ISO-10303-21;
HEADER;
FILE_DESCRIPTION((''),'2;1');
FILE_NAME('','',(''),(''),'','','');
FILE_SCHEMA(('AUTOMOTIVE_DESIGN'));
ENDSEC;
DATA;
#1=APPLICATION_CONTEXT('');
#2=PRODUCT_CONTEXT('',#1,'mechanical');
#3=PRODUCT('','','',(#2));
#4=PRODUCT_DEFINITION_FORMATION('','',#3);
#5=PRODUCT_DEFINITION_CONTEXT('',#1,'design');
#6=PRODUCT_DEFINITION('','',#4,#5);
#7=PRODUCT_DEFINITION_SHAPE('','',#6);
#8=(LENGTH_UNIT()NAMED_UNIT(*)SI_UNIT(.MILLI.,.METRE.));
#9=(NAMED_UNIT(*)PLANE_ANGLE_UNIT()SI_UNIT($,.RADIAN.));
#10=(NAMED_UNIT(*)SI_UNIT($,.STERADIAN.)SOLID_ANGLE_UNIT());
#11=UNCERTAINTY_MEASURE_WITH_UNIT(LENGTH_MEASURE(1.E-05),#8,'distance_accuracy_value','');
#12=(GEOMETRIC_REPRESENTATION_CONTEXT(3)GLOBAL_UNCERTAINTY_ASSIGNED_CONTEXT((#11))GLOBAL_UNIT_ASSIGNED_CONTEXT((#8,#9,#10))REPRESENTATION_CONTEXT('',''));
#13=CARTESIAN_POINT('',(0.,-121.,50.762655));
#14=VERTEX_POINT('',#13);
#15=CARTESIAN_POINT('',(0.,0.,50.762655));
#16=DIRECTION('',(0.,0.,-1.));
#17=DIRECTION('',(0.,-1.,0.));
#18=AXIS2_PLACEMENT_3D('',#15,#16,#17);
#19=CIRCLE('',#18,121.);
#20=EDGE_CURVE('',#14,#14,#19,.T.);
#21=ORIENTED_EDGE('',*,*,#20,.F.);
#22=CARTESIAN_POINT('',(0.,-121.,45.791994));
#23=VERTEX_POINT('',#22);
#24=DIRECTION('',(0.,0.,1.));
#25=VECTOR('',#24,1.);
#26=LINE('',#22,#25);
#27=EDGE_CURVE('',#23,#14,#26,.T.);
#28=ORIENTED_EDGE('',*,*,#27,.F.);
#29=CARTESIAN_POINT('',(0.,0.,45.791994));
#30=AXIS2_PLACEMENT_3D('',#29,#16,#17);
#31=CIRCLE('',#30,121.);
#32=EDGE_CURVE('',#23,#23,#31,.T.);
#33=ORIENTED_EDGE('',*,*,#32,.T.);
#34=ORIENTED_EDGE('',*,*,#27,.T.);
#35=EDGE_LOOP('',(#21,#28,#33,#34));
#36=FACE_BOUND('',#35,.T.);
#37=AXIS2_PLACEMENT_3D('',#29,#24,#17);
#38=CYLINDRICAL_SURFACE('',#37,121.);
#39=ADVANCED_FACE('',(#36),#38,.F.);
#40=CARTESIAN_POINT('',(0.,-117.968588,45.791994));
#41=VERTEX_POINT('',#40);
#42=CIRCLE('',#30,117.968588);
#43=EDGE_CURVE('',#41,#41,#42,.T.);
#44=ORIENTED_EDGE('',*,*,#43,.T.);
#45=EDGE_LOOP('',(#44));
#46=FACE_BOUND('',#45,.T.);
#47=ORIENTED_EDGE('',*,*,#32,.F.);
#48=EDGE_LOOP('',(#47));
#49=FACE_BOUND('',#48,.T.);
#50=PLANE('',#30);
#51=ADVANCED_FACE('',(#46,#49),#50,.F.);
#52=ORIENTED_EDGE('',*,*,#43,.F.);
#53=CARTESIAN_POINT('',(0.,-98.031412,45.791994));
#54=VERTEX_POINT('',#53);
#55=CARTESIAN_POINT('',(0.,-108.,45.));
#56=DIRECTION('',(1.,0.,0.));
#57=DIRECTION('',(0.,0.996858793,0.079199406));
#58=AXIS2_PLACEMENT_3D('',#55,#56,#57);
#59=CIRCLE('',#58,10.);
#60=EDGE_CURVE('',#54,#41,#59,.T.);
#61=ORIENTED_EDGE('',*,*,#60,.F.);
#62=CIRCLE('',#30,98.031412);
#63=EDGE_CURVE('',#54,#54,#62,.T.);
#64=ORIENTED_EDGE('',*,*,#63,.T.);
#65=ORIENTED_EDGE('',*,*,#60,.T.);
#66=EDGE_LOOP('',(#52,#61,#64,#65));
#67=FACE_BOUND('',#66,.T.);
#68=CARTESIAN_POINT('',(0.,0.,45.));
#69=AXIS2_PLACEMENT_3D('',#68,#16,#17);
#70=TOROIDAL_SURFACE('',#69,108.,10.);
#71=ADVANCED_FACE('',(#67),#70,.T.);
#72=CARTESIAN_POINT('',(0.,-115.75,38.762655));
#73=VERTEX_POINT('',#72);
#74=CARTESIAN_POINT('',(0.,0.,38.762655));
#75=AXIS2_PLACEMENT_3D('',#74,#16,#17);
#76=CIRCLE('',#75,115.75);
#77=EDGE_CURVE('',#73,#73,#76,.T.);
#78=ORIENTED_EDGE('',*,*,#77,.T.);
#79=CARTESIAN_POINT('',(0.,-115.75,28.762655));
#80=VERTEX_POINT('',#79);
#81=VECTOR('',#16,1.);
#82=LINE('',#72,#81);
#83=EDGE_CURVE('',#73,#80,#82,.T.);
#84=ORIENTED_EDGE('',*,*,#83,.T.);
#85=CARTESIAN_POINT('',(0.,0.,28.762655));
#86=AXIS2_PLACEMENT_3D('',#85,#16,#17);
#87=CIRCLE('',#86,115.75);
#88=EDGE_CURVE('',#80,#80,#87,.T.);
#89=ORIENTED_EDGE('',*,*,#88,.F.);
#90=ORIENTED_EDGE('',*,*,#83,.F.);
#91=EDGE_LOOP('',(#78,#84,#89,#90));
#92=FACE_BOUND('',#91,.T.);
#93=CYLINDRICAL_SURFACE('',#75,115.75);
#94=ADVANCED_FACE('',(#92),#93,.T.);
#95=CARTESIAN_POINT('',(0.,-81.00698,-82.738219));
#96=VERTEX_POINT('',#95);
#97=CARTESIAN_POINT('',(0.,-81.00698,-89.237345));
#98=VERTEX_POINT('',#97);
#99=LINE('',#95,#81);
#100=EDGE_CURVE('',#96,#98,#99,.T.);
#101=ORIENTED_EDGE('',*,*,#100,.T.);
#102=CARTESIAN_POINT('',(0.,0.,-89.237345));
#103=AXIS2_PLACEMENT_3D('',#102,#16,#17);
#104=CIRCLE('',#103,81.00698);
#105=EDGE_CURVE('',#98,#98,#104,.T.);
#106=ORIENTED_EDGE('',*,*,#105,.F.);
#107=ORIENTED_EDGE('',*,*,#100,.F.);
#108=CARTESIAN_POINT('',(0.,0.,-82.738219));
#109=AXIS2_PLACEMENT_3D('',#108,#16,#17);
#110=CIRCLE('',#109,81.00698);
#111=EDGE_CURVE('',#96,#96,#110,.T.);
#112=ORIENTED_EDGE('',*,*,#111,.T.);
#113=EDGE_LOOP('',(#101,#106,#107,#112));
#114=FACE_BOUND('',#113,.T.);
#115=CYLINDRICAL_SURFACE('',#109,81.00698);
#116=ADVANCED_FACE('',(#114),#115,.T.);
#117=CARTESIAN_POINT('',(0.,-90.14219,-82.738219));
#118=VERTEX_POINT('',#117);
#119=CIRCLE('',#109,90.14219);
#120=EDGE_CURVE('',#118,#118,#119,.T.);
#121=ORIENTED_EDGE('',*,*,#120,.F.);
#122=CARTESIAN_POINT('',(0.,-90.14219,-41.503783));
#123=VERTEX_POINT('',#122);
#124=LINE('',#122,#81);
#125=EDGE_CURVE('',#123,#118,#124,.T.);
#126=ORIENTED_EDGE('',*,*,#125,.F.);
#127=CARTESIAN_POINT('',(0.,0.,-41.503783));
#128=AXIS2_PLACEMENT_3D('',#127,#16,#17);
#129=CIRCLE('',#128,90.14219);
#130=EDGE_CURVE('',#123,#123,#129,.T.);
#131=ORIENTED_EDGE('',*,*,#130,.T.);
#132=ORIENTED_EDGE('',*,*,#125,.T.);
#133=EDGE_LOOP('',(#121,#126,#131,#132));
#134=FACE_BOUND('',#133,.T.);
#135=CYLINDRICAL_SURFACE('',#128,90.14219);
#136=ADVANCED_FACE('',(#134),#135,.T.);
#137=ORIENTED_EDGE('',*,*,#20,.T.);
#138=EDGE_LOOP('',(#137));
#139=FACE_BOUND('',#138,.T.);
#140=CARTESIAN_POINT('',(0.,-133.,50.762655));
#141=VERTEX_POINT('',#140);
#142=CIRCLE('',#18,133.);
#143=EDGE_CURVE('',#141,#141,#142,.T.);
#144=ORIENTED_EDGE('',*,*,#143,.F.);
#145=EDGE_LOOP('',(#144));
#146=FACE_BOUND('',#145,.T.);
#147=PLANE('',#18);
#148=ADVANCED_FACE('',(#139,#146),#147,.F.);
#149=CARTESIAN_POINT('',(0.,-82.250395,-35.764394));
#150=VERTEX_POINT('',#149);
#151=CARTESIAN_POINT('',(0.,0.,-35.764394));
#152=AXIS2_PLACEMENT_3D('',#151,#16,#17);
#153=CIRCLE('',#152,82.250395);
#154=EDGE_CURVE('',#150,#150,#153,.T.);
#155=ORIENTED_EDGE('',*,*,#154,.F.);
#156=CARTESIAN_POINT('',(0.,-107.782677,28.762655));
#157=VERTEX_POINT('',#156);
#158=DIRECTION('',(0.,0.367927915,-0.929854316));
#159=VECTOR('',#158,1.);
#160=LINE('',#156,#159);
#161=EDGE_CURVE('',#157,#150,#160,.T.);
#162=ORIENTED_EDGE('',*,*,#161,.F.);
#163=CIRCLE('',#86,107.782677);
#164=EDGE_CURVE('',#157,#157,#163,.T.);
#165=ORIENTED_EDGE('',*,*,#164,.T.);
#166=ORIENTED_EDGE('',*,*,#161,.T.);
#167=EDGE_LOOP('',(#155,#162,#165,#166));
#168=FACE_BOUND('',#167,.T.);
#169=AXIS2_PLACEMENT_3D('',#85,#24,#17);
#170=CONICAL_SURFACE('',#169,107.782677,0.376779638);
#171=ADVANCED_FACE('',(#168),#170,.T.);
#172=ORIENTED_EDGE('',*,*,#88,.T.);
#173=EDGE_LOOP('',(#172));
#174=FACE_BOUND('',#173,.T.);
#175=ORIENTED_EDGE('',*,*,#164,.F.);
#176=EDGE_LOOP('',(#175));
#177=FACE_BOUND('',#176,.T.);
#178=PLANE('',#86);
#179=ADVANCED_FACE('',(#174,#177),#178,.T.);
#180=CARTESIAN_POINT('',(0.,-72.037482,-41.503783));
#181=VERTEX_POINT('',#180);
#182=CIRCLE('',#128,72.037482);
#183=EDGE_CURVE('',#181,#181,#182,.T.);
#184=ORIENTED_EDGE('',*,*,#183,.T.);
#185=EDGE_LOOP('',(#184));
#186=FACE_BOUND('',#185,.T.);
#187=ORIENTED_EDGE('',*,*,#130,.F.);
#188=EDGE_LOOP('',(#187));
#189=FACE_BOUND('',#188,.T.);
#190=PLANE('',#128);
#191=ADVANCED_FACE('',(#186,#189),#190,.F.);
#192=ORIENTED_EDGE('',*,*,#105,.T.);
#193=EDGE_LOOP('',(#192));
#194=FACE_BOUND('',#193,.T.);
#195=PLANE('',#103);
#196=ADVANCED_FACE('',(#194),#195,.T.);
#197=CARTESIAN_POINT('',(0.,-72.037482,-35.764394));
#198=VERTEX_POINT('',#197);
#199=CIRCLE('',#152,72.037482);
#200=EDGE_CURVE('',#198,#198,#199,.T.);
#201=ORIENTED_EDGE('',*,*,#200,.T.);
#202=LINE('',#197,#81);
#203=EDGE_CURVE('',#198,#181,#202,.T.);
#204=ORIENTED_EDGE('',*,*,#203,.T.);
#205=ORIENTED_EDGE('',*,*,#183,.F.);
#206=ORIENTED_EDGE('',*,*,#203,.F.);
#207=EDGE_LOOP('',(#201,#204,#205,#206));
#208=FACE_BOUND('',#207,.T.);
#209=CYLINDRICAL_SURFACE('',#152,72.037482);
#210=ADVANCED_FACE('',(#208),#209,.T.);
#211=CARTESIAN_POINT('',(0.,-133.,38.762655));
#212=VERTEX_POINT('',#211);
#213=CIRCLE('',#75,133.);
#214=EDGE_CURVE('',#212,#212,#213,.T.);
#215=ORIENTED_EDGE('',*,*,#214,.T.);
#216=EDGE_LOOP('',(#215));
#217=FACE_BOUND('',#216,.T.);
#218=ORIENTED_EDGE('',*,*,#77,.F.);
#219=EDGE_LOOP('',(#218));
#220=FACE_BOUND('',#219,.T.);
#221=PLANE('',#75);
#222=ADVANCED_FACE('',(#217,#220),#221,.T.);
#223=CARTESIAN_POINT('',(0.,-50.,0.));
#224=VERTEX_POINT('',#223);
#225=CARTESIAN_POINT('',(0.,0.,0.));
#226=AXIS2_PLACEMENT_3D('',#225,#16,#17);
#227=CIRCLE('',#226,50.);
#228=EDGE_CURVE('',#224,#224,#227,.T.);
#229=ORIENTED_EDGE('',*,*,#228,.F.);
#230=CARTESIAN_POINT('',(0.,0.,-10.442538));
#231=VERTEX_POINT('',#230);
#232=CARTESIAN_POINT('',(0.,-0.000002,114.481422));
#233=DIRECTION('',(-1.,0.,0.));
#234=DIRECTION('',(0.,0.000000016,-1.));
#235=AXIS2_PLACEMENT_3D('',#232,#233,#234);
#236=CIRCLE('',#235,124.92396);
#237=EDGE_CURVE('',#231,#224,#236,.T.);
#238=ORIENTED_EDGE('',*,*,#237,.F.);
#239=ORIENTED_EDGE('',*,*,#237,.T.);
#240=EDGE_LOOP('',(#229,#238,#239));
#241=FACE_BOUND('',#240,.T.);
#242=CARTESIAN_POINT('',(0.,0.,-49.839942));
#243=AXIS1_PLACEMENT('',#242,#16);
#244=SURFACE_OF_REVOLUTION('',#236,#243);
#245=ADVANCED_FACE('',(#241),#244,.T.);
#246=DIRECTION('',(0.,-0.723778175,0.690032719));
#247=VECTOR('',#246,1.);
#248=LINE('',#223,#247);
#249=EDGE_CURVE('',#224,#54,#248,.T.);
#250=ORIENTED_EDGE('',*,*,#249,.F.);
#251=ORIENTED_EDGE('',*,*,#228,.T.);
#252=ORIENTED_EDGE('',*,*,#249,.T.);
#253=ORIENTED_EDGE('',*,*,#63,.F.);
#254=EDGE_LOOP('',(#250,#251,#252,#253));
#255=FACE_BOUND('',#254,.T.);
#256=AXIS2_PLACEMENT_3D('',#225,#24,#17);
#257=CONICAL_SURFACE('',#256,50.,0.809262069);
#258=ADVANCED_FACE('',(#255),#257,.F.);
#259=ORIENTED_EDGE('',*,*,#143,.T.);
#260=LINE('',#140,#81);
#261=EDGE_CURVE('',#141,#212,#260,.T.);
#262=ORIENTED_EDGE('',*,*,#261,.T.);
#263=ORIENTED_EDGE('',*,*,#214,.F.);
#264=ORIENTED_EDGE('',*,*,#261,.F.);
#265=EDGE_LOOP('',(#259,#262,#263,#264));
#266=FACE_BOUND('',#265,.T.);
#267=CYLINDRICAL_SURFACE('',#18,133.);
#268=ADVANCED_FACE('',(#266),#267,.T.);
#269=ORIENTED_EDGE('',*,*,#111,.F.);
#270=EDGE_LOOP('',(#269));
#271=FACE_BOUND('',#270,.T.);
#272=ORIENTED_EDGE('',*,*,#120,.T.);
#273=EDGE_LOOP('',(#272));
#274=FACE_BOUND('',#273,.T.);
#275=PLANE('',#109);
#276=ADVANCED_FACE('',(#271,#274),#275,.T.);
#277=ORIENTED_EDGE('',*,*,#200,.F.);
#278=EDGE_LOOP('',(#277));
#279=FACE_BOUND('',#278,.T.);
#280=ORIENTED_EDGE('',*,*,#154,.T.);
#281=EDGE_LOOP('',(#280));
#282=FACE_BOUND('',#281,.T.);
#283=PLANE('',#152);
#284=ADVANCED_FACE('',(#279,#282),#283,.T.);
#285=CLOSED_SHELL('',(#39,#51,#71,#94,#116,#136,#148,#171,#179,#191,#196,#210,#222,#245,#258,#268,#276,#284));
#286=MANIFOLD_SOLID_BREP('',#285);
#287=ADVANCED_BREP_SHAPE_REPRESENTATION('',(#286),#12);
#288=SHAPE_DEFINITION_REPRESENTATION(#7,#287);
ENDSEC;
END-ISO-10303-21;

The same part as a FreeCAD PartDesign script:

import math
import FreeCAD as App
import Part
import Sketcher

V = App.Vector

doc = App.newDocument("Part")
params = doc.addObject("Spreadsheet::Sheet", "Params")
for row, (alias, value) in enumerate([
    ("sketch1_radius", "10 mm"),
    ("sketch1_width", "12 mm"),
    ("sketch1_height", "10 mm"),
    ("sketch1_width2", "17.25 mm"),
    ("revolution_angle", "360 deg"),
], start=1):
    params.set(f"A{row}", alias)
    params.set(f"B{row}", "=" + value)
    params.setAlias(f"B{row}", alias)

body = doc.addObject("PartDesign::Body", "Body")

# Sketch on YZ plane
sketch1 = body.newObject("Sketcher::SketchObject", "Sketch")
sketch1.AttachmentSupport = (doc.getObject("YZ_Plane"), [""])
sketch1.MapMode = "FlatFace"
sketch1.addGeometry([
    Part.LineSegment(V(0, -89.237345, 0), V(0, -10.442538, 0)),  # 0
    Part.ArcOfCircle(Part.Circle(V(-0.000002, 114.481422, 0), V(0, 0, 1), 124.92396), math.radians(-113.593399), math.radians(-89.999999)),  # 1
    Part.LineSegment(V(-50, 0, 0), V(-98.031412, 45.791994, 0)),  # 2
    Part.ArcOfCircle(Part.Circle(V(-108, 45, 0), V(0, 0, 1), 10), math.radians(4.542549), math.radians(175.457451)),  # 3
    Part.LineSegment(V(-117.968588, 45.791994, 0), V(-121, 45.791994, 0)),  # 4
    Part.LineSegment(V(-121, 45.791994, 0), V(-121, 50.762655, 0)),  # 5
    Part.LineSegment(V(-121, 50.762655, 0), V(-133, 50.762655, 0)),  # 6
    Part.LineSegment(V(-133, 50.762655, 0), V(-133, 38.762655, 0)),  # 7
    Part.LineSegment(V(-133, 38.762655, 0), V(-115.75, 38.762655, 0)),  # 8
    Part.LineSegment(V(-115.75, 38.762655, 0), V(-115.75, 28.762655, 0)),  # 9
    Part.LineSegment(V(-115.75, 28.762655, 0), V(-107.782677, 28.762655, 0)),  # 10
    Part.LineSegment(V(-107.782677, 28.762655, 0), V(-82.250395, -35.764394, 0)),  # 11
    Part.LineSegment(V(-82.250395, -35.764394, 0), V(-72.037482, -35.764394, 0)),  # 12
    Part.LineSegment(V(-72.037482, -35.764394, 0), V(-72.037482, -41.503783, 0)),  # 13
    Part.LineSegment(V(-72.037482, -41.503783, 0), V(-90.14219, -41.503783, 0)),  # 14
    Part.LineSegment(V(-90.14219, -41.503783, 0), V(-90.14219, -82.738219, 0)),  # 15
    Part.LineSegment(V(-90.14219, -82.738219, 0), V(-81.00698, -82.738219, 0)),  # 16
    Part.LineSegment(V(-81.00698, -82.738219, 0), V(-81.00698, -89.237345, 0)),  # 17
    Part.LineSegment(V(-81.00698, -89.237345, 0), V(0, -89.237345, 0)),  # 18
], False)
sketch1.addConstraint([
    Sketcher.Constraint("Coincident", 0, 2, 1, 2),
    Sketcher.Constraint("Coincident", 1, 1, 2, 1),
    Sketcher.Constraint("Coincident", 2, 2, 3, 1),
    Sketcher.Constraint("Coincident", 3, 2, 4, 1),
    Sketcher.Constraint("Coincident", 4, 2, 5, 1),
    Sketcher.Constraint("Coincident", 5, 2, 6, 1),
    Sketcher.Constraint("Coincident", 6, 2, 7, 1),
    Sketcher.Constraint("Coincident", 7, 2, 8, 1),
    Sketcher.Constraint("Coincident", 8, 2, 9, 1),
    Sketcher.Constraint("Coincident", 9, 2, 10, 1),
    Sketcher.Constraint("Coincident", 10, 2, 11, 1),
    Sketcher.Constraint("Coincident", 11, 2, 12, 1),
    Sketcher.Constraint("Coincident", 12, 2, 13, 1),
    Sketcher.Constraint("Coincident", 13, 2, 14, 1),
    Sketcher.Constraint("Coincident", 14, 2, 15, 1),
    Sketcher.Constraint("Coincident", 15, 2, 16, 1),
    Sketcher.Constraint("Coincident", 16, 2, 17, 1),
    Sketcher.Constraint("Coincident", 17, 2, 18, 1),
    Sketcher.Constraint("Coincident", 18, 2, 0, 1),
    Sketcher.Constraint("Vertical", 0),
    Sketcher.Constraint("Horizontal", 4),
    Sketcher.Constraint("Vertical", 5),
    Sketcher.Constraint("Horizontal", 6),
    Sketcher.Constraint("Vertical", 7),
    Sketcher.Constraint("Horizontal", 8),
    Sketcher.Constraint("Vertical", 9),
    Sketcher.Constraint("Horizontal", 10),
    Sketcher.Constraint("Horizontal", 12),
    Sketcher.Constraint("Vertical", 13),
    Sketcher.Constraint("Horizontal", 14),
    Sketcher.Constraint("Vertical", 15),
    Sketcher.Constraint("Horizontal", 16),
    Sketcher.Constraint("Vertical", 17),
    Sketcher.Constraint("Horizontal", 18),
    Sketcher.Constraint("PointOnObject", 1, 3, -2),
    Sketcher.Constraint("PointOnObject", 0, 2, -2),
    Sketcher.Constraint("PointOnObject", 1, 1, -1),
    Sketcher.Constraint("Horizontal", 2, 2, 3, 2),
    Sketcher.Constraint("Equal", 6, 7),
    Sketcher.Constraint("Radius", 3, 10.0),
    Sketcher.Constraint("DistanceX", 6, 2, 6, 1, 12.0),
    Sketcher.Constraint("DistanceY", 9, 2, 9, 1, 10.0),
    Sketcher.Constraint("DistanceX", 3, 3, -1, 1, 108.0),
    Sketcher.Constraint("DistanceY", -1, 1, 3, 3, 45.0),
    Sketcher.Constraint("DistanceX", 1, 1, -1, 1, 50.0),
    Sketcher.Constraint("DistanceX", 4, 2, -1, 1, 121.0),
    Sketcher.Constraint("DistanceX", 8, 1, 8, 2, 17.25),
    Sketcher.Constraint("Radius", 1, 124.92396),
    Sketcher.Constraint("DistanceX", 14, 2, 14, 1, 18.104708),
    Sketcher.Constraint("DistanceX", 16, 1, 16, 2, 9.13521),
    Sketcher.Constraint("DistanceX", 18, 1, 18, 2, 81.00698),
    Sketcher.Constraint("DistanceY", 5, 1, 5, 2, 4.970661),
    Sketcher.Constraint("DistanceY", 13, 2, 13, 1, 5.739389),
    Sketcher.Constraint("Distance", 2, 66.362062),
    Sketcher.Constraint("DistanceX", 10, 1, 10, 2, 7.967323),
    Sketcher.Constraint("DistanceX", 12, 1, 12, 2, 10.212913),
    Sketcher.Constraint("DistanceY", 0, 1, 0, 2, 78.794807),
    Sketcher.Constraint("DistanceY", 15, 2, 15, 1, 41.234436),
    Sketcher.Constraint("DistanceY", 17, 2, 17, 1, 6.499126),
])
sketch1.setExpression("Constraints[39]", "Params.sketch1_radius")
sketch1.setExpression("Constraints[40]", "Params.sketch1_width")
sketch1.setExpression("Constraints[41]", "Params.sketch1_height")
sketch1.setExpression("Constraints[46]", "Params.sketch1_width2")
revolution = body.newObject("PartDesign::Revolution", "Revolution")
revolution.Profile = sketch1
revolution.ReferenceAxis = (sketch1, ["V_Axis"])
revolution.setExpression("Angle", "Params.revolution_angle")

doc.recompute()
